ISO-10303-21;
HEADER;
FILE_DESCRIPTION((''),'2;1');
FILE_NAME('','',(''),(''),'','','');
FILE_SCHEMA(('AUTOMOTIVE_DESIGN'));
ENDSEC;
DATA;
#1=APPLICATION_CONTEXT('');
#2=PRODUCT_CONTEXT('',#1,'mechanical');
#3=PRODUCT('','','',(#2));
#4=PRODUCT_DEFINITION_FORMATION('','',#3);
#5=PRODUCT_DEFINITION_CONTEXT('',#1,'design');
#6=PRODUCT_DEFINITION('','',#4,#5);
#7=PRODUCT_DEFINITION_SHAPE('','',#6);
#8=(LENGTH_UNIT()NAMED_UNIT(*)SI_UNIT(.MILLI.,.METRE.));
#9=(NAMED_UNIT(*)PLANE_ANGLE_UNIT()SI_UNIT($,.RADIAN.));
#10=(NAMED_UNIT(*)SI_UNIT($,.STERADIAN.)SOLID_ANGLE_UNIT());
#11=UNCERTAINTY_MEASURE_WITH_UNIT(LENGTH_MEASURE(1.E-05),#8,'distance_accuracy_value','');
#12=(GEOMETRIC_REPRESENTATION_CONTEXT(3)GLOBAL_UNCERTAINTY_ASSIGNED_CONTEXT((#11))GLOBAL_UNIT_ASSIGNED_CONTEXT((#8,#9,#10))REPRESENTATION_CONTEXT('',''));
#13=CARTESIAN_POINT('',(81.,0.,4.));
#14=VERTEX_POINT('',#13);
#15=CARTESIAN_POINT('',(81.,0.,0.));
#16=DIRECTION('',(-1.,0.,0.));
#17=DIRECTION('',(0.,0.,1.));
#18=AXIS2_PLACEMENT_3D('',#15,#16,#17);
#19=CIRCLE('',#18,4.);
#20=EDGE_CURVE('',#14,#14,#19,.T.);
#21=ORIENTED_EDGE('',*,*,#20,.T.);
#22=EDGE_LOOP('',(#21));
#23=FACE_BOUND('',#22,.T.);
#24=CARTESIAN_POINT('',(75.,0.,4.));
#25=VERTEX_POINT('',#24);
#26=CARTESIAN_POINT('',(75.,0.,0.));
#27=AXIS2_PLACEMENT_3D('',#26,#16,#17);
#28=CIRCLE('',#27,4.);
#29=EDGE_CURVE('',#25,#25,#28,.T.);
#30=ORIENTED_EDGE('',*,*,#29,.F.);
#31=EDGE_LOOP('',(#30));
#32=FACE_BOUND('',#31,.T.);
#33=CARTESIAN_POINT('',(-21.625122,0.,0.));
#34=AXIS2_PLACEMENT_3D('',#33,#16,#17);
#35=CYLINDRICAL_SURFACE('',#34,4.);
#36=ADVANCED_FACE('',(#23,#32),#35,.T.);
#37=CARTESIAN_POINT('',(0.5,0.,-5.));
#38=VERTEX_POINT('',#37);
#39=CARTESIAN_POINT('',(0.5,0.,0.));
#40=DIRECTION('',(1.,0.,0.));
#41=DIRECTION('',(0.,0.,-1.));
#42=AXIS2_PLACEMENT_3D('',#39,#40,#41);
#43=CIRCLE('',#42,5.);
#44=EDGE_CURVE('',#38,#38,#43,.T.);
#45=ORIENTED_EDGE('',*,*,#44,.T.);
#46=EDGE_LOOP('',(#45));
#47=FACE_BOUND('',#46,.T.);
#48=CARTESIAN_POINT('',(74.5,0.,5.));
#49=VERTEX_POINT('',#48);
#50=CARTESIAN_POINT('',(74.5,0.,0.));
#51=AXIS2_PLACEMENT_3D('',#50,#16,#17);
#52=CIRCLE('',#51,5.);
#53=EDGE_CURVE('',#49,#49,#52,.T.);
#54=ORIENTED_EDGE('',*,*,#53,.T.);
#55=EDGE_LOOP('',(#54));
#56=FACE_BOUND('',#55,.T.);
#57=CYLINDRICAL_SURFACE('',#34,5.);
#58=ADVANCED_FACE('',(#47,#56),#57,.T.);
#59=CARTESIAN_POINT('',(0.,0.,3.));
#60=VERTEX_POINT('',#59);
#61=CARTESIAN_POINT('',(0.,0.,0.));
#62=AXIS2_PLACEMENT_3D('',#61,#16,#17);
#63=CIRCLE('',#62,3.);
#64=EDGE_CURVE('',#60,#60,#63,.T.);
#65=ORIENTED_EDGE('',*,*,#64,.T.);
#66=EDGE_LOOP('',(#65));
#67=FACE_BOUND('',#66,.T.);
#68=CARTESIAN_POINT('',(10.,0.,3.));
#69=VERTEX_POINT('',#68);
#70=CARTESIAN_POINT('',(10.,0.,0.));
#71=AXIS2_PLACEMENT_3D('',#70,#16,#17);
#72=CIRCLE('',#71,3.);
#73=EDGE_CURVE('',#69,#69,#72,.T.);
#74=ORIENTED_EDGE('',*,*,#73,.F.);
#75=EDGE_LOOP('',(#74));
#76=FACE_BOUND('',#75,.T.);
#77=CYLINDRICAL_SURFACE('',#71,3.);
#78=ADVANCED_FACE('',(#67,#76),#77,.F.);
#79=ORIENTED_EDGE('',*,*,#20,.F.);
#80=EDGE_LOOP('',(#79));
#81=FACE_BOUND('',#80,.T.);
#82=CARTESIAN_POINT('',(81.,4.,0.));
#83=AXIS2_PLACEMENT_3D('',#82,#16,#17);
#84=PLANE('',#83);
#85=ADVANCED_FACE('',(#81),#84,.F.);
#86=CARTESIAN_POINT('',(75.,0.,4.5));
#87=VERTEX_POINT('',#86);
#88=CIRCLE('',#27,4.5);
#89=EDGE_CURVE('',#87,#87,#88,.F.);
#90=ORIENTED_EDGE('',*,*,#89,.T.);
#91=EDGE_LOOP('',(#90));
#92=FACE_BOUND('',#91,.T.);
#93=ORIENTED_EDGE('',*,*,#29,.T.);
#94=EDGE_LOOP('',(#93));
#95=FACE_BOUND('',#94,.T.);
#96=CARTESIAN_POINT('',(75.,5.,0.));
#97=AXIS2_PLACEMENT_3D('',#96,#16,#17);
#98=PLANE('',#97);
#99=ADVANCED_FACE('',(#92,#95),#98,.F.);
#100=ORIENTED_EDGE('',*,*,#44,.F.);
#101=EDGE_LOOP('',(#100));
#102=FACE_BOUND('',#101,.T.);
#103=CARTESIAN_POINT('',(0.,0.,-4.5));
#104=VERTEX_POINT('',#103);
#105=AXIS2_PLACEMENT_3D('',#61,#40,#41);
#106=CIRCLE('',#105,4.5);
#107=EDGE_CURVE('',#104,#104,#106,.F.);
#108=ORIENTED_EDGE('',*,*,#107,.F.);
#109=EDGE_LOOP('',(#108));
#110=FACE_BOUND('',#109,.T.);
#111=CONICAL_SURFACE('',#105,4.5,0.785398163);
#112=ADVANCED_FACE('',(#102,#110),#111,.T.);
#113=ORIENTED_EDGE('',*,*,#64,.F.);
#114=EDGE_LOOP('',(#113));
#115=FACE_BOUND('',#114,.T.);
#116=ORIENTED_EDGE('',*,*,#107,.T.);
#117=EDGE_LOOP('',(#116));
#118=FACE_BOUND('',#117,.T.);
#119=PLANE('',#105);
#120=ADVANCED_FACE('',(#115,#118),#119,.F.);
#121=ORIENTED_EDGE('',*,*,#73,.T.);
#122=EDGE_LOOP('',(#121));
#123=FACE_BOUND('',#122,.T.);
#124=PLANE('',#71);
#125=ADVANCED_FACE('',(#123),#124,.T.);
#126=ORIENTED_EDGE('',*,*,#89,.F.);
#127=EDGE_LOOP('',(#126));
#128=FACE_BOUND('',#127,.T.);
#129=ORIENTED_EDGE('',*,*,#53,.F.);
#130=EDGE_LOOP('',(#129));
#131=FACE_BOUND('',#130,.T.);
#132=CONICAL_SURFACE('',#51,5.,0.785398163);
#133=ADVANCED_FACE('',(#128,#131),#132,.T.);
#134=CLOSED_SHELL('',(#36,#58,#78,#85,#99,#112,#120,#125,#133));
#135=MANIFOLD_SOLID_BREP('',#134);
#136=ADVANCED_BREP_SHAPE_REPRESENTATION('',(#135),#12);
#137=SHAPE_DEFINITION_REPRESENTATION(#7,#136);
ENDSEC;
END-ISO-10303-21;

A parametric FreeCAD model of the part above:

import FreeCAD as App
import Part
import Sketcher


def edges_at(feature, points):
    """Names of the edges that pass closest to the given points."""
    edges = feature.Shape.Edges
    near = lambda p: min(range(len(edges)), key=lambda i: edges[i].distToShape(Part.Vertex(*p))[0])
    return sorted({f"Edge{near(p) + 1}" for p in points})


def add_polygon(sketch, points):
    """Adds a closed chain of lines whose ends are joined by coincident constraints."""
    first, n = sketch.GeometryCount, len(points)
    for a, b in zip(points, points[1:] + points[:1]):
        sketch.addGeometry(Part.LineSegment(App.Vector(*a, 0), App.Vector(*b, 0)), False)
    for i in range(n):
        sketch.addConstraint(Sketcher.Constraint("Coincident", first + i, 2, first + (i + 1) % n, 1))

doc = App.newDocument("Part")
body = doc.addObject("PartDesign::Body", "Body")

# Sketch on XY plane
sketch1 = body.newObject("Sketcher::SketchObject", "Sketch")
sketch1.AttachmentSupport = (doc.getObject("XY_Plane"), [""])
sketch1.MapMode = "FlatFace"
add_polygon(sketch1, [(0, 5), (0, 0), (81, 0), (81, 4), (75, 4), (75, 5)])  # lines 0-5
sketch1.addConstraint(Sketcher.Constraint("Vertical", 0))
sketch1.addConstraint(Sketcher.Constraint("Horizontal", 1))
sketch1.addConstraint(Sketcher.Constraint("Vertical", 2))
sketch1.addConstraint(Sketcher.Constraint("Horizontal", 3))
sketch1.addConstraint(Sketcher.Constraint("Vertical", 4))
sketch1.addConstraint(Sketcher.Constraint("Horizontal", 5))
sketch1.addConstraint(Sketcher.Constraint("Coincident", 0, 2, -1, 1))
sketch1.addConstraint(Sketcher.Constraint("DistanceX", 1, 1, 1, 2, 81.0))
sketch1.addConstraint(Sketcher.Constraint("DistanceX", 3, 2, 3, 1, 6.0))
sketch1.addConstraint(Sketcher.Constraint("DistanceY", 0, 2, 0, 1, 5.0))
sketch1.addConstraint(Sketcher.Constraint("DistanceY", 2, 1, 2, 2, 4.0))
revolution = body.newObject("PartDesign::Revolution", "Revolution")
revolution.Profile = sketch1
revolution.ReferenceAxis = (sketch1, ["H_Axis"])
revolution.Angle = 360
doc.recompute()

chamfer = body.newObject("PartDesign::Chamfer", "Chamfer")
chamfer.Base = (revolution, edges_at(revolution, [(75, 0, -5), (0, 0, -5)]))
chamfer.Size = 0.5

# Sketch on YZ plane
sketch2 = body.newObject("Sketcher::SketchObject", "Sketch001")
sketch2.AttachmentSupport = (doc.getObject("YZ_Plane"), [""])
sketch2.MapMode = "FlatFace"
sketch2.addGeometry(Part.Circle(App.Vector(0, 0, 0), App.Vector(0, 0, 1), 3), False)
sketch2.addConstraint(Sketcher.Constraint("Coincident", 0, 3, -1, 1))
sketch2.addConstraint(Sketcher.Constraint("Diameter", 0, 6.0))
pocket1 = body.newObject("PartDesign::Pocket", "Pocket")
pocket1.Profile = sketch2
pocket1.Length = 10
pocket1.Reversed = True

doc.recompute()
